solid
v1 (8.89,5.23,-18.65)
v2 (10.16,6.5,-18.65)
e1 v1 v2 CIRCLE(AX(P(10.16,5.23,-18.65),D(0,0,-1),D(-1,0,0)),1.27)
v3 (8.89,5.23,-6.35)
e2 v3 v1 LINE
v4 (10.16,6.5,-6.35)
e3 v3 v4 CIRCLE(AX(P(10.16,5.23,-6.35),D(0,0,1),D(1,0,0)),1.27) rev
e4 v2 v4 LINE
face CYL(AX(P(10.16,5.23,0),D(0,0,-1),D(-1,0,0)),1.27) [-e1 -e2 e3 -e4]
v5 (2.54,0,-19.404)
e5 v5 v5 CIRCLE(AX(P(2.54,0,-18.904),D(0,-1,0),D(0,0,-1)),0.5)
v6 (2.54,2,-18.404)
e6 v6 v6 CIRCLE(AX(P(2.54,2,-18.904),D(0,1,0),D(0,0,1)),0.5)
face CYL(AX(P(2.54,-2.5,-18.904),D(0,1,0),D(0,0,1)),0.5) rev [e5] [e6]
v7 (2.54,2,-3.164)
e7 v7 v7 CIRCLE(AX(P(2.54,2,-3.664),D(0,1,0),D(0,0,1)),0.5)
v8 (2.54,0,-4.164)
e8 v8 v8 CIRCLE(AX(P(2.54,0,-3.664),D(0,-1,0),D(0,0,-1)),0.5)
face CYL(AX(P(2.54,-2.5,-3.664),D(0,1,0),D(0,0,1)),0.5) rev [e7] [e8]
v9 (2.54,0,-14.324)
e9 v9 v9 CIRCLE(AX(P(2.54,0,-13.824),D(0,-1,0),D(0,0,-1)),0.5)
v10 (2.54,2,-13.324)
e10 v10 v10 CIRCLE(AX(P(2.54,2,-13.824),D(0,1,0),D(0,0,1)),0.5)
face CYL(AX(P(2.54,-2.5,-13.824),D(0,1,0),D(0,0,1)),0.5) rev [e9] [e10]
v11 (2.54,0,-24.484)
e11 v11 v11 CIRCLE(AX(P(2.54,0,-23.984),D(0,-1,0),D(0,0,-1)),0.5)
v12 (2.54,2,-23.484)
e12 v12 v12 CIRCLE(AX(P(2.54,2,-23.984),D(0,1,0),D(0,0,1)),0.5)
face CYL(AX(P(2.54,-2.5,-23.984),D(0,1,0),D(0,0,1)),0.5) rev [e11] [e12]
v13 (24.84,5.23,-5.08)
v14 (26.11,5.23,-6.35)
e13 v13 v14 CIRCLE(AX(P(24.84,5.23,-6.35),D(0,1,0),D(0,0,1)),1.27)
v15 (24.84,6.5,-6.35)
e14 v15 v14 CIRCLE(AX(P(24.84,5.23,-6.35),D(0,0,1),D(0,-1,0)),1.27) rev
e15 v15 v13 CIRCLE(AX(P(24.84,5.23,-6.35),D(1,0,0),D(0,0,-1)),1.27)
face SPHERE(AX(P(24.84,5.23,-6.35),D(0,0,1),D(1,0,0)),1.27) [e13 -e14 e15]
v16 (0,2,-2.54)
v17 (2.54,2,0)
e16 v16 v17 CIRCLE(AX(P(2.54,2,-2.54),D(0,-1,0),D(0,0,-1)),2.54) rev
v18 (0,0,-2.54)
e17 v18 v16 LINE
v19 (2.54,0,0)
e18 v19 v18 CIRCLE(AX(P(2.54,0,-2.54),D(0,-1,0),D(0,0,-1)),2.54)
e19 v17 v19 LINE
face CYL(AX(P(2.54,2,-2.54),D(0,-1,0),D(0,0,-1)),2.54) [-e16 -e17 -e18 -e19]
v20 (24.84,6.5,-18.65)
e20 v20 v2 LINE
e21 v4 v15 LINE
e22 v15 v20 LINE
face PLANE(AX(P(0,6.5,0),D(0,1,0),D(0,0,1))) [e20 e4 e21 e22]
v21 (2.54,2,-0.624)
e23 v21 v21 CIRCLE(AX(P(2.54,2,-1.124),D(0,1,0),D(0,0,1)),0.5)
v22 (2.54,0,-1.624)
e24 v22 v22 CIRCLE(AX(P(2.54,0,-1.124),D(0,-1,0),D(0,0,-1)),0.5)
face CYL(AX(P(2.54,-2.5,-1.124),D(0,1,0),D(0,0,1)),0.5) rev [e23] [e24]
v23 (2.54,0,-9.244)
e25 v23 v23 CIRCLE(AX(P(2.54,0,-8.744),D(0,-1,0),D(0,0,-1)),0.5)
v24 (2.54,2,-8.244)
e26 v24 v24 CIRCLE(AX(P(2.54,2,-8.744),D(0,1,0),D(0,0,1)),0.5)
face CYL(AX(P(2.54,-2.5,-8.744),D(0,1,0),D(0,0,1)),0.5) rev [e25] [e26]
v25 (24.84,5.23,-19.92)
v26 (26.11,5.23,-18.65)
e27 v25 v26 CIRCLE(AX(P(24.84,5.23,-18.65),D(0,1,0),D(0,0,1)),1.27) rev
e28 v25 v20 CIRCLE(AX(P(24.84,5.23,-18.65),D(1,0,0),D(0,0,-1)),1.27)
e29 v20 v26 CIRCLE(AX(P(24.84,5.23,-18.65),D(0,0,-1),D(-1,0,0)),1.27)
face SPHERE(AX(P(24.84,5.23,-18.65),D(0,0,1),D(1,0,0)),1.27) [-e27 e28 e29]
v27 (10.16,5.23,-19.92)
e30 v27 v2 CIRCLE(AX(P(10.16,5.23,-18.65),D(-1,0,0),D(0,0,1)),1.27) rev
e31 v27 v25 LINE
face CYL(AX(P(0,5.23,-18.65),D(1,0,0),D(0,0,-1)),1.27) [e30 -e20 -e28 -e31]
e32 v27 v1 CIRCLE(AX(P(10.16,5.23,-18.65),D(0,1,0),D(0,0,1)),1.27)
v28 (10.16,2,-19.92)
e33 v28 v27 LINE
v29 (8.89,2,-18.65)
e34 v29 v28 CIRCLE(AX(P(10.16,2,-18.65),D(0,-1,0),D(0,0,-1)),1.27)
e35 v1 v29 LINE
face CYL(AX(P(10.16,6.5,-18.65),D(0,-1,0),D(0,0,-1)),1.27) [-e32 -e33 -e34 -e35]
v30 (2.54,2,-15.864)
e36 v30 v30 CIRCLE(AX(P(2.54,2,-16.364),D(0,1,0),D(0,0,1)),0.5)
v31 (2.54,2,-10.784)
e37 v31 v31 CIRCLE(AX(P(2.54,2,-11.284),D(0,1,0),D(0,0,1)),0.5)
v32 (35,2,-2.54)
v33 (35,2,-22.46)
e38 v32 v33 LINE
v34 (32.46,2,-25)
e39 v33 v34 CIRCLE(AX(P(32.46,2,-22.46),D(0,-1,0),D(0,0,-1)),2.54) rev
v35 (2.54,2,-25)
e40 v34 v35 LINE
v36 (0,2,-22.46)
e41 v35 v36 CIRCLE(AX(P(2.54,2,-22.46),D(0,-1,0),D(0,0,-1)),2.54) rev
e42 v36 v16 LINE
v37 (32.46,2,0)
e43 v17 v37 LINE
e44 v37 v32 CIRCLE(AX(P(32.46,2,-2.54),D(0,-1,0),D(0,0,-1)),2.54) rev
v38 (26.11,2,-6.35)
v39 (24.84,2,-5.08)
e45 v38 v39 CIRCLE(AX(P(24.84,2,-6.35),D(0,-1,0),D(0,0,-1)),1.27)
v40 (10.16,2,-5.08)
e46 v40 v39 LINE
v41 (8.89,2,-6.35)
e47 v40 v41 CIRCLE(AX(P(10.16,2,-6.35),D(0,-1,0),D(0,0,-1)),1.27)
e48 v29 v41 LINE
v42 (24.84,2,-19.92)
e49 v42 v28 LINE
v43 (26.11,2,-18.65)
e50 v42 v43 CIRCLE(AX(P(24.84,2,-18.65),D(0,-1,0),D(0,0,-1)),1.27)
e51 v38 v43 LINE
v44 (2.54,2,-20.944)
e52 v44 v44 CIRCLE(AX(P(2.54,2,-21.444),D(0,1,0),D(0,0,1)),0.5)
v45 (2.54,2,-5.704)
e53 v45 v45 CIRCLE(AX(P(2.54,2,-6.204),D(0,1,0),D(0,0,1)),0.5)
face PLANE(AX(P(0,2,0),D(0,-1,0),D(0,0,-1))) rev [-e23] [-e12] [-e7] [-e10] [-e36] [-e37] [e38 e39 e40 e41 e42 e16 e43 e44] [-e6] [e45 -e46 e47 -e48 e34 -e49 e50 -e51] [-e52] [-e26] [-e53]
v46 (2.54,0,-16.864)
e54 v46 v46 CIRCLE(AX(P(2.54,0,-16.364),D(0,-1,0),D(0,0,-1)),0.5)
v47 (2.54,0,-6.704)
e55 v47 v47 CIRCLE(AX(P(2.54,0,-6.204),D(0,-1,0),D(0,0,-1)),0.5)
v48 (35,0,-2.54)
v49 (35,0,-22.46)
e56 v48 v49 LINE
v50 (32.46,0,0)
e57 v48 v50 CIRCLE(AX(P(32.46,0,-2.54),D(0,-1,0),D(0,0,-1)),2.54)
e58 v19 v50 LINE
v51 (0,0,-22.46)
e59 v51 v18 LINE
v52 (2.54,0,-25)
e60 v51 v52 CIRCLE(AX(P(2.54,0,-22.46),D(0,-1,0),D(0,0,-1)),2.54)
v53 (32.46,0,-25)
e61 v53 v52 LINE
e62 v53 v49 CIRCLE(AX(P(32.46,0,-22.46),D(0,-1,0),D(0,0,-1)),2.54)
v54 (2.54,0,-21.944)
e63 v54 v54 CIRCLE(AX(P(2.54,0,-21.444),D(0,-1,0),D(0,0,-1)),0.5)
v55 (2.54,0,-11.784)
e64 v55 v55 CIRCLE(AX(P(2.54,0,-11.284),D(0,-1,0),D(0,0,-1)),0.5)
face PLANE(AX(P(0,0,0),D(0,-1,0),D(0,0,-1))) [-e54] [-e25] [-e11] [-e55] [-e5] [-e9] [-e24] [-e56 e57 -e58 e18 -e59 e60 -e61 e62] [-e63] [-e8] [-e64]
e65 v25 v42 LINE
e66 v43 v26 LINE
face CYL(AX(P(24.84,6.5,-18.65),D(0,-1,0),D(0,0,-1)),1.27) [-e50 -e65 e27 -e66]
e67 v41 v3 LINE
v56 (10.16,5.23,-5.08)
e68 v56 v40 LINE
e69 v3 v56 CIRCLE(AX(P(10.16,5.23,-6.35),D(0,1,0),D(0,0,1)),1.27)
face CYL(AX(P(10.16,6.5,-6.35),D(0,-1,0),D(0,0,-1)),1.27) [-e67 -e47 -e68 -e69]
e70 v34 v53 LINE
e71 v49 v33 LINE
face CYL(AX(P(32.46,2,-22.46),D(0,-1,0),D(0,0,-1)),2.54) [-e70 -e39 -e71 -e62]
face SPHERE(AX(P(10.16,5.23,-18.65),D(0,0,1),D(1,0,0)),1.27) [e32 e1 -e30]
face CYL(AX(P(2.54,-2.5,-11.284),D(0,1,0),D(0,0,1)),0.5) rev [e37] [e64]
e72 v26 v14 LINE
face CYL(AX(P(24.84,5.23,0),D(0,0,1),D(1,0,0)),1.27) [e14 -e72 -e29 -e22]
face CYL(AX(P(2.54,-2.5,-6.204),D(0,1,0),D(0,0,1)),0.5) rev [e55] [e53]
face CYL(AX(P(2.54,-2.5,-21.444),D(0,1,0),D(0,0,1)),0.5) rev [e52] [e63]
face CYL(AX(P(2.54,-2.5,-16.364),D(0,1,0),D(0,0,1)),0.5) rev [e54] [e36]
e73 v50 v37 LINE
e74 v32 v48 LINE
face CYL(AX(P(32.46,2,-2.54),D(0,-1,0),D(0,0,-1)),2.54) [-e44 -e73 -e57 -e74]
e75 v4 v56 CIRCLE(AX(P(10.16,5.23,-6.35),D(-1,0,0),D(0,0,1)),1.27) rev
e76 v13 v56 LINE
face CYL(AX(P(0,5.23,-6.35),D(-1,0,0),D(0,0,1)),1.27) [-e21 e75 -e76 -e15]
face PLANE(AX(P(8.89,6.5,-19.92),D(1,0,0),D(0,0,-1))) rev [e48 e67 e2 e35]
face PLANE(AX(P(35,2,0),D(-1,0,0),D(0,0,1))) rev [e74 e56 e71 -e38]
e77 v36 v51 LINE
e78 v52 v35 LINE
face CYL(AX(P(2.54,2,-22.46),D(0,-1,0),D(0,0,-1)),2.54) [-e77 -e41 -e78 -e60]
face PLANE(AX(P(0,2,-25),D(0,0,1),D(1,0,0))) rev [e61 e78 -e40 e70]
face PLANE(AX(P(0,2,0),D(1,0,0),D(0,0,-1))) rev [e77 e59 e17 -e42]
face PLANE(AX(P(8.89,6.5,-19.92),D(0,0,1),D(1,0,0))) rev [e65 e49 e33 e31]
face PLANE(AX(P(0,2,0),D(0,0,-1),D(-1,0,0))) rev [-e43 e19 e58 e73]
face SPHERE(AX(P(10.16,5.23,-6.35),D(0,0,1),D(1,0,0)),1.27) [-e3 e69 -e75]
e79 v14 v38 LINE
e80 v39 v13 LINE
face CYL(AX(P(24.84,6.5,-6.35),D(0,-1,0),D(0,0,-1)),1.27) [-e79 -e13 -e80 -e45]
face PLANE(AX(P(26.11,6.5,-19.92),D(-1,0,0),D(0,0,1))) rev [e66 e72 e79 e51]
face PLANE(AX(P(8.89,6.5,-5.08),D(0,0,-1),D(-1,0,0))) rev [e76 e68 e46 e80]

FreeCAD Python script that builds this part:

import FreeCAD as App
import Part
import Sketcher

V = App.Vector


def edges_at(feature, points):
    """Names of the edges that pass closest to the given points."""
    edges = feature.Shape.Edges
    near = lambda p: min(range(len(edges)), key=lambda i: edges[i].distToShape(Part.Vertex(*p))[0])
    return sorted({f"Edge{near(p) + 1}" for p in points})


def add_polygon(sketch, points):
    """Adds a closed chain of lines whose ends are joined by coincident constraints."""
    first, n = sketch.GeometryCount, len(points)
    for a, b in zip(points, points[1:] + points[:1]):
        sketch.addGeometry(Part.LineSegment(App.Vector(*a, 0), App.Vector(*b, 0)), False)
    for i in range(n):
        sketch.addConstraint(Sketcher.Constraint("Coincident", first + i, 2, first + (i + 1) % n, 1))

doc = App.newDocument("Part")
body = doc.addObject("PartDesign::Body", "Body")

sketch1 = doc.addObject("Sketcher::SketchObject", "Sketch")
body.addObject(sketch1)
sketch1.AttachmentSupport = (doc.XZ_Plane, [""])
sketch1.MapMode = "FlatFace"
add_polygon(sketch1, [(0, -25), (0, 0), (35, 0), (35, -25)])
sketch1.addConstraint(Sketcher.Constraint("Vertical", 0))
sketch1.addConstraint(Sketcher.Constraint("Horizontal", 1))
sketch1.addConstraint(Sketcher.Constraint("Vertical", 2))
sketch1.addConstraint(Sketcher.Constraint("Horizontal", 3))
sketch1.addConstraint(Sketcher.Constraint("Coincident", 0, 2, -1, 1))
sketch1.addConstraint(Sketcher.Constraint("DistanceX", 1, 1, 1, 2, 35.0))
sketch1.addConstraint(Sketcher.Constraint("DistanceY", 0, 1, 0, 2, 25.0))
pad1 = doc.addObject("PartDesign::Pad", "Pad")
body.addObject(pad1)
pad1.Profile = sketch1
pad1.Length = 2
pad1.Reversed = True
doc.recompute()

fillet = doc.addObject("PartDesign::Fillet", "Fillet")
body.addObject(fillet)
fillet.Base = (pad1, edges_at(pad1, [
    (0, 1, -25),
    (35, 1, -25),
    (35, 1, 0),
    (0, 1, 0),
]))
fillet.Radius = 2.54

sketch2 = doc.addObject("Sketcher::SketchObject", "Sketch001")
body.addObject(sketch2)
sketch2.AttachmentSupport = (doc.XZ_Plane, [""])
sketch2.MapMode = "FlatFace"
sketch2.AttachmentOffset = App.Placement(V(0, 0, -2), App.Rotation())
add_polygon(sketch2, [(9, -20), (9, -5), (26, -5), (26, -20)])
sketch2.addConstraint(Sketcher.Constraint("Vertical", 0))
sketch2.addConstraint(Sketcher.Constraint("Horizontal", 1))
sketch2.addConstraint(Sketcher.Constraint("Vertical", 2))
sketch2.addConstraint(Sketcher.Constraint("Horizontal", 3))
sketch2.addConstraint(Sketcher.Constraint("DistanceX", 1, 1, 1, 2, 17.22))
sketch2.addConstraint(Sketcher.Constraint("DistanceY", 0, 1, 0, 2, 14.84))
sketch2.addConstraint(Sketcher.Constraint("DistanceX", -1, 1, 0, 2, 8.89))
sketch2.addConstraint(Sketcher.Constraint("DistanceY", 0, 2, -1, 1, 5.08))
pad2 = doc.addObject("PartDesign::Pad", "Pad001")
body.addObject(pad2)
pad2.Profile = sketch2
pad2.Length = 4.5
pad2.Reversed = True
doc.recompute()

fillet2 = doc.addObject("PartDesign::Fillet", "Fillet001")
body.addObject(fillet2)
fillet2.Base = (pad2, edges_at(pad2, [
    (8.89, 4.25, -19.92),
    (8.89, 4.25, -5.08),
    (26.11, 4.25, -5.08),
    (26.11, 4.25, -19.92),
    (8.89, 6.5, -12.5),
    (17.5, 6.5, -5.08),
    (26.11, 6.5, -12.5),
    (17.5, 6.5, -19.92),
]))
fillet2.Radius = 1.27

sketch3 = doc.addObject("Sketcher::SketchObject", "Sketch002")
body.addObject(sketch3)
sketch3.AttachmentSupport = (doc.XZ_Plane, [""])
sketch3.MapMode = "FlatFace"
sketch3.AttachmentOffset = App.Placement(V(0, 0, -2), App.Rotation())
sketch3.addGeometry(Part.Circle(V(2.5, -24, 0), V(0, 0, 1), 0.5), False)
sketch3.addGeometry(Part.Circle(V(2.5, -21.4, 0), V(0, 0, 1), 0.5), False)
sketch3.addGeometry(Part.Circle(V(2.5, -18.9, 0), V(0, 0, 1), 0.5), False)
sketch3.addGeometry(Part.Circle(V(2.5, -16.4, 0), V(0, 0, 1), 0.5), False)
sketch3.addGeometry(Part.Circle(V(2.5, -13.8, 0), V(0, 0, 1), 0.5), False)
sketch3.addGeometry(Part.Circle(V(2.5, -11.3, 0), V(0, 0, 1), 0.5), False)
sketch3.addGeometry(Part.Circle(V(2.5, -8.7, 0), V(0, 0, 1), 0.5), False)
sketch3.addGeometry(Part.Circle(V(2.5, -6.2, 0), V(0, 0, 1), 0.5), False)
sketch3.addGeometry(Part.Circle(V(2.5, -3.7, 0), V(0, 0, 1), 0.5), False)
sketch3.addGeometry(Part.Circle(V(2.5, -1.1, 0), V(0, 0, 1), 0.5), False)
sketch3.addConstraint(Sketcher.Constraint("Equal", 0, 1))
sketch3.addConstraint(Sketcher.Constraint("Equal", 1, 2))
sketch3.addConstraint(Sketcher.Constraint("Equal", 2, 3))
sketch3.addConstraint(Sketcher.Constraint("Equal", 3, 4))
sketch3.addConstraint(Sketcher.Constraint("Equal", 4, 5))
sketch3.addConstraint(Sketcher.Constraint("Equal", 5, 6))
sketch3.addConstraint(Sketcher.Constraint("Equal", 6, 7))
sketch3.addConstraint(Sketcher.Constraint("Equal", 7, 8))
sketch3.addConstraint(Sketcher.Constraint("Equal", 8, 9))
sketch3.addConstraint(Sketcher.Constraint("Vertical", 0, 3, 1, 3))
sketch3.addConstraint(Sketcher.Constraint("Vertical", 1, 3, 2, 3))
sketch3.addConstraint(Sketcher.Constraint("Vertical", 2, 3, 3, 3))
sketch3.addConstraint(Sketcher.Constraint("Vertical", 3, 3, 4, 3))
sketch3.addConstraint(Sketcher.Constraint("Vertical", 4, 3, 5, 3))
sketch3.addConstraint(Sketcher.Constraint("Vertical", 5, 3, 6, 3))
sketch3.addConstraint(Sketcher.Constraint("Vertical", 6, 3, 7, 3))
sketch3.addConstraint(Sketcher.Constraint("Vertical", 7, 3, 8, 3))
sketch3.addConstraint(Sketcher.Constraint("Vertical", 8, 3, 9, 3))
sketch3.addConstraint(Sketcher.Constraint("Diameter", 0, 1.0))
sketch3.addConstraint(Sketcher.Constraint("DistanceY", 0, 3, 5, 3, 12.7))
sketch3.addConstraint(Sketcher.Constraint("DistanceY", 1, 3, 6, 3, 12.7))
sketch3.addConstraint(Sketcher.Constraint("DistanceY", 2, 3, 7, 3, 12.7))
sketch3.addConstraint(Sketcher.Constraint("DistanceY", 3, 3, 8, 3, 12.7))
sketch3.addConstraint(Sketcher.Constraint("DistanceY", 4, 3, 9, 3, 12.7))
sketch3.addConstraint(Sketcher.Constraint("DistanceX", -1, 1, 0, 3, 2.54))
sketch3.addConstraint(Sketcher.Constraint("DistanceY", 0, 3, 1, 3, 2.54))
sketch3.addConstraint(Sketcher.Constraint("DistanceY", 1, 3, 2, 3, 2.54))
sketch3.addConstraint(Sketcher.Constraint("DistanceY", 2, 3, 3, 3, 2.54))
sketch3.addConstraint(Sketcher.Constraint("DistanceY", 3, 3, 4, 3, 2.54))
sketch3.addConstraint(Sketcher.Constraint("DistanceY", 0, 3, -1, 1, 23.984))
pocket1 = doc.addObject("PartDesign::Pocket", "Pocket")
body.addObject(pocket1)
pocket1.Profile = sketch3
pocket1.Length = 4.5
pocket1.Reversed = True

doc.recompute()
